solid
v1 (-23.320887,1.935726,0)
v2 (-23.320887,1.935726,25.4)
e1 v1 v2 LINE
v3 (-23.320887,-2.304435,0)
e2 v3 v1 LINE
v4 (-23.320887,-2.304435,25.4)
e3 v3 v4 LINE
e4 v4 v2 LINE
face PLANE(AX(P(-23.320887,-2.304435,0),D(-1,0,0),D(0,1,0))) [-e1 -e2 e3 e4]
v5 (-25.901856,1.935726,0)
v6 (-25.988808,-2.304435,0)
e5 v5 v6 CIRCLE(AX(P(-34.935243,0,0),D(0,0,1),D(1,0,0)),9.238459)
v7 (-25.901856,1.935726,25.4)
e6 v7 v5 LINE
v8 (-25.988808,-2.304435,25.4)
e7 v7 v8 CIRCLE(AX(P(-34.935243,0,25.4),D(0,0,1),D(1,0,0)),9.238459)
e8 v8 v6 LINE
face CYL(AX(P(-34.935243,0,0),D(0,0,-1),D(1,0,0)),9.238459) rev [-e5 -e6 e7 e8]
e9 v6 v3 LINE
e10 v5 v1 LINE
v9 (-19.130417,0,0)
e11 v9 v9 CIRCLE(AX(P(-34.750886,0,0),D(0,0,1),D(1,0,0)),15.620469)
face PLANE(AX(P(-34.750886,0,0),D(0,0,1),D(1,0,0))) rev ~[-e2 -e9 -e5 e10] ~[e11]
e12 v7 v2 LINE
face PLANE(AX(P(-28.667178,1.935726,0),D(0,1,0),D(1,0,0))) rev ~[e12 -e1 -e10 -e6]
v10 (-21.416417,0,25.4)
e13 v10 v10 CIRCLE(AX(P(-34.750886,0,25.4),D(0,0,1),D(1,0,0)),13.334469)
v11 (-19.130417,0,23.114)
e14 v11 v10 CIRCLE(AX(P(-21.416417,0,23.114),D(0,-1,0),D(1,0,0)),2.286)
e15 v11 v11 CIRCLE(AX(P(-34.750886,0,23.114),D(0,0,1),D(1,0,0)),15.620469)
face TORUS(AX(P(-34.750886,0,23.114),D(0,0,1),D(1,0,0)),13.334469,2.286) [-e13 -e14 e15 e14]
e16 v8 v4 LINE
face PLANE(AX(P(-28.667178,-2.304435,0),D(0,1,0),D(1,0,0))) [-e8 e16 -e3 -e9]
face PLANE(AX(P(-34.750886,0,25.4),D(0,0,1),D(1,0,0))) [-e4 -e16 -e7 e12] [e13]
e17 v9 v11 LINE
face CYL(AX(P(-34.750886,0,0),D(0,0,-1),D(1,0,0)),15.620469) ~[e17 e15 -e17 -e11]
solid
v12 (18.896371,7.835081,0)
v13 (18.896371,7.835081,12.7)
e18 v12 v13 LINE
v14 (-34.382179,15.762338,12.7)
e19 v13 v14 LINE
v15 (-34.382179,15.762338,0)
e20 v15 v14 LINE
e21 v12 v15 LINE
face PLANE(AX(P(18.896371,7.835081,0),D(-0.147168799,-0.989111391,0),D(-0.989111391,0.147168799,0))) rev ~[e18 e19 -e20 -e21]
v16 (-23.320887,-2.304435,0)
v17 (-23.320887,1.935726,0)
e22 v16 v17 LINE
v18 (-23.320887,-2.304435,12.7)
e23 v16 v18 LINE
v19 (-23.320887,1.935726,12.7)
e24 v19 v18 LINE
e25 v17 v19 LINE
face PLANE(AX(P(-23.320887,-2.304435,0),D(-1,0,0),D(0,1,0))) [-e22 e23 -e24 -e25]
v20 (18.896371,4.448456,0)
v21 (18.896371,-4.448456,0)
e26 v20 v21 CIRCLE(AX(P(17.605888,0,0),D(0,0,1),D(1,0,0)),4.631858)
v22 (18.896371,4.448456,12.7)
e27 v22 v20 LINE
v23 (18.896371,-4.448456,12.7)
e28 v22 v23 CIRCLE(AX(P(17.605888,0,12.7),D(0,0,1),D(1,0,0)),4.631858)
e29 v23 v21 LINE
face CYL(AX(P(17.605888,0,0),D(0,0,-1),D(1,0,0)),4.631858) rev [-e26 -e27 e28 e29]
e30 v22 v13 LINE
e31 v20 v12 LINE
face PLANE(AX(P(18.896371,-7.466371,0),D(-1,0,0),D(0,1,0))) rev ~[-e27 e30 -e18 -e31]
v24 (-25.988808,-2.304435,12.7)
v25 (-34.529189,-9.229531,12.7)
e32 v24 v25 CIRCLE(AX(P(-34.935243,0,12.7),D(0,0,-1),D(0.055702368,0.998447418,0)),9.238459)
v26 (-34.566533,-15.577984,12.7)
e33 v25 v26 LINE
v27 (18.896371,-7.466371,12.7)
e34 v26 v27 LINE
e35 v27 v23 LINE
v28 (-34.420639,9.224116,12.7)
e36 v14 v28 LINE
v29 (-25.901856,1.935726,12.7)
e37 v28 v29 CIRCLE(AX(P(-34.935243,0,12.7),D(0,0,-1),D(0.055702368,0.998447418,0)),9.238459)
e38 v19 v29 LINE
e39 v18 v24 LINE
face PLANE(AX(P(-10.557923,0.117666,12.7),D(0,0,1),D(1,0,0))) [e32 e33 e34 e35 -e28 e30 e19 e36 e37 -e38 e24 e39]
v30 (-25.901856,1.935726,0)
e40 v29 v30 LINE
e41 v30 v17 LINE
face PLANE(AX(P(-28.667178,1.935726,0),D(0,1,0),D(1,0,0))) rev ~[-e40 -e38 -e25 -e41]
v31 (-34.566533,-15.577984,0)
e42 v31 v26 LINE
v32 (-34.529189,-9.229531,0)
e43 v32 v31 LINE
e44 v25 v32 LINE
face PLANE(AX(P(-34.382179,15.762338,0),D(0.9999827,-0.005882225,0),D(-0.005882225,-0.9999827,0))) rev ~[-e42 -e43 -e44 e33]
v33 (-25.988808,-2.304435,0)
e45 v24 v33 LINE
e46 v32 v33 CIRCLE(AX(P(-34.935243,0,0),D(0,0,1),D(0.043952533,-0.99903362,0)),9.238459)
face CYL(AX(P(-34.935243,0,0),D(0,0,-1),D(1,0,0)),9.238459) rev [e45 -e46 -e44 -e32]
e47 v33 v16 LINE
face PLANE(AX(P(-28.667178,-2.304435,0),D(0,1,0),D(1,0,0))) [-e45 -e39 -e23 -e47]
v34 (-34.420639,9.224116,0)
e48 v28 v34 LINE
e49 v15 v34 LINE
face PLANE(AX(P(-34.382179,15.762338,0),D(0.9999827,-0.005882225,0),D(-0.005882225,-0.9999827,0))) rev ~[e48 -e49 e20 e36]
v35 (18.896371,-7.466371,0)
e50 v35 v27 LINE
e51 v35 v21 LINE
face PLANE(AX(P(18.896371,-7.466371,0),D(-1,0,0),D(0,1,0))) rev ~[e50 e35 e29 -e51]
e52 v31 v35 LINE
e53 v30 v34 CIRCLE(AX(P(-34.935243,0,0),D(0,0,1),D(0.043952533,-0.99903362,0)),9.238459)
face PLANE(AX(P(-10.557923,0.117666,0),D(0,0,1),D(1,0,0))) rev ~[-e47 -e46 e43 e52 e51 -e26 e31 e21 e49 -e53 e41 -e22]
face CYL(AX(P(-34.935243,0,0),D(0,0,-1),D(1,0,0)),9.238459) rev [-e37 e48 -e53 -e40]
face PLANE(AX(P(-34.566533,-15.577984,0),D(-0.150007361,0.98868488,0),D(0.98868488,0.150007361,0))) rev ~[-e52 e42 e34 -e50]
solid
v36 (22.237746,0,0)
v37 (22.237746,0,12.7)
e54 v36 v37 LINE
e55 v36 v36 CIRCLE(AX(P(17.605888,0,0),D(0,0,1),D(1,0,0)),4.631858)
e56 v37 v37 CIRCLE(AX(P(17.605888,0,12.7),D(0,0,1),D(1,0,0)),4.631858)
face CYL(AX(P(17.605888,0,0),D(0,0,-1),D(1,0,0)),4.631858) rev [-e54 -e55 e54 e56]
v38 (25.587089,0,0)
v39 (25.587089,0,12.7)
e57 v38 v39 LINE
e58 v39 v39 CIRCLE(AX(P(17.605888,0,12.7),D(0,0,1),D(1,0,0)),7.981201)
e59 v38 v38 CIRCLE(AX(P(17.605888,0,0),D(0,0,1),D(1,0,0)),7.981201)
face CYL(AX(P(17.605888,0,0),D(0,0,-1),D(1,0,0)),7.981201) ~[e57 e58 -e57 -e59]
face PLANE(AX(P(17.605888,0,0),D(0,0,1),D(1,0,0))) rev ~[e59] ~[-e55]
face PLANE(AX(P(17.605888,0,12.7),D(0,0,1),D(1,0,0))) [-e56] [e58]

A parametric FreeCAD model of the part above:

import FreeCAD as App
import Part
import Sketcher

V = App.Vector


def edges_at(feature, points):
    """Names of the edges that pass closest to the given points."""
    edges = feature.Shape.Edges
    near = lambda p: min(range(len(edges)), key=lambda i: edges[i].distToShape(Part.Vertex(*p))[0])
    return sorted({f"Edge{near(p) + 1}" for p in points})


def add_polygon(sketch, points):
    """Adds a closed chain of lines whose ends are joined by coincident constraints."""
    first, n = sketch.GeometryCount, len(points)
    for a, b in zip(points, points[1:] + points[:1]):
        sketch.addGeometry(Part.LineSegment(App.Vector(*a, 0), App.Vector(*b, 0)), False)
    for i in range(n):
        sketch.addConstraint(Sketcher.Constraint("Coincident", first + i, 2, first + (i + 1) % n, 1))

doc = App.newDocument("Part")
params = doc.addObject("Spreadsheet::Sheet", "Params")
for row, (alias, value) in enumerate([
    ("pad1_length", "1 in"),
    ("pad2_length", "0.5 in"),
    ("pad3_length", "0.5 in"),
    ("pad4_length", "0.5 in"),
    ("pad5_length", "1 in"),
    ("pad6_length", "1 in"),
    ("fillet_radius", "0.09 in"),
], start=1):
    params.set(f"A{row}", alias)
    params.set(f"B{row}", "=" + value)
    params.setAlias(f"B{row}", alias)

body = doc.addObject("PartDesign::Body", "Body")

sketch1 = body.newObject("Sketcher::SketchObject", "Sketch")
sketch1.AttachmentSupport = (doc.getObject("XY_Plane"), [""])
sketch1.MapMode = "FlatFace"
sketch1.addGeometry(Part.Circle(V(-35, 0, 0), V(0, 0, 1), 16), False)
sketch1.addConstraint([
    Sketcher.Constraint("PointOnObject", 0, 3, -1),
    Sketcher.Constraint("Diameter", 0, 31.240938),
    Sketcher.Constraint("DistanceX", 0, 3, -1, 1, 34.750886),
])
pad1 = body.newObject("PartDesign::Pad", "Pad")
pad1.Profile = sketch1
pad1.setExpression("Length", "Params.pad1_length")
body2 = doc.addObject("PartDesign::Body", "Body001")

sketch2 = body2.newObject("Sketcher::SketchObject", "Sketch001")
sketch2.AttachmentSupport = (doc.getObject("XY_Plane001"), [""])
sketch2.MapMode = "FlatFace"
sketch2.addGeometry(Part.Circle(V(18, 0, 0), V(0, 0, 1), 8), False)
sketch2.addConstraint([
    Sketcher.Constraint("PointOnObject", 0, 3, -1),
    Sketcher.Constraint("Diameter", 0, 15.962402),
    Sketcher.Constraint("DistanceX", -1, 1, 0, 3, 17.605888),
])
pad2 = body2.newObject("PartDesign::Pad", "Pad001")
pad2.Profile = sketch2
pad2.setExpression("Length", "Params.pad2_length")
body3 = doc.addObject("PartDesign::Body", "Body002")

sketch3 = body3.newObject("Sketcher::SketchObject", "Sketch002")
sketch3.AttachmentSupport = (doc.getObject("XY_Plane002"), [""])
sketch3.MapMode = "FlatFace"
add_polygon(sketch3, [(19, 8), (-34, 16), (-35, -16), (19, -7)])
sketch3.addConstraint([
    Sketcher.Constraint("Vertical", 3),
    Sketcher.Constraint("DistanceY", 3, 1, 3, 2, 15.301452),
    Sketcher.Constraint("DistanceX", 0, 2, -1, 1, 34.382179),
    Sketcher.Constraint("DistanceX", -1, 1, 2, 2, 18.896371),
    Sketcher.Constraint("DistanceY", 2, 2, -1, 1, 7.466371),
    Sketcher.Constraint("DistanceY", 2, 2, 0, 2, 23.228709),
    Sketcher.Constraint("Distance", 1, 31.340864),
    Sketcher.Constraint("Distance", 2, 54.074766),
])
pad3 = body3.newObject("PartDesign::Pad", "Pad002")
pad3.Profile = sketch3
pad3.setExpression("Length", "Params.pad3_length")
body4 = doc.addObject("PartDesign::Body", "Body003")

sketch4 = body4.newObject("Sketcher::SketchObject", "Sketch003")
sketch4.AttachmentSupport = (doc.getObject("XY_Plane003"), [""])
sketch4.MapMode = "FlatFace"
sketch4.addGeometry(Part.Circle(V(17.6, 0, 0), V(0, 0, 1), 4.6), False)
sketch4.addConstraint([
    Sketcher.Constraint("PointOnObject", 0, 3, -1),
    Sketcher.Constraint("Diameter", 0, 9.263716),
    Sketcher.Constraint("DistanceX", -1, 1, 0, 3, 17.605888),
])
pad4 = body4.newObject("PartDesign::Pad", "Pad003")
pad4.Profile = sketch4
pad4.setExpression("Length", "Params.pad4_length")
doc.recompute()

body5 = doc.addObject("PartDesign::Body", "Body004")
body5.BaseFeature = body4
boolean = body2.newObject("PartDesign::Boolean", "Boolean")
boolean.Type = "Cut"
boolean.addObjects([body5])
doc.recompute()

boolean2 = body3.newObject("PartDesign::Boolean", "Boolean001")
boolean2.Type = "Cut"
boolean2.addObjects([body4])
body6 = doc.addObject("PartDesign::Body", "Body005")

sketch5 = body6.newObject("Sketcher::SketchObject", "Sketch004")
sketch5.AttachmentSupport = (doc.getObject("XY_Plane005"), [""])
sketch5.MapMode = "FlatFace"
sketch5.addGeometry(Part.Circle(V(-35, 0, 0), V(0, 0, 1), 9), False)
sketch5.addConstraint([
    Sketcher.Constraint("PointOnObject", 0, 3, -1),
    Sketcher.Constraint("Diameter", 0, 18.476918),
    Sketcher.Constraint("DistanceX", 0, 3, -1, 1, 34.935243),
])
pad5 = body6.newObject("PartDesign::Pad", "Pad004")
pad5.Profile = sketch5
pad5.setExpression("Length", "Params.pad5_length")
doc.recompute()

body7 = doc.addObject("PartDesign::Body", "Body006")
body7.BaseFeature = body6
boolean3 = body.newObject("PartDesign::Boolean", "Boolean002")
boolean3.Type = "Cut"
boolean3.addObjects([body7])
doc.recompute()

boolean4 = body3.newObject("PartDesign::Boolean", "Boolean003")
boolean4.Type = "Cut"
boolean4.addObjects([body6])
body8 = doc.addObject("PartDesign::Body", "Body007")

sketch6 = body8.newObject("Sketcher::SketchObject", "Sketch005")
sketch6.AttachmentSupport = (doc.getObject("XY_Plane007"), [""])
sketch6.MapMode = "FlatFace"
add_polygon(sketch6, [(-28.7, 1.9), (-28.7, -2.3), (-23.3, -2.3), (-23.3, 1.9)])
sketch6.addConstraint([
    Sketcher.Constraint("Vertical", 0),
    Sketcher.Constraint("Horizontal", 1),
    Sketcher.Constraint("Vertical", 2),
    Sketcher.Constraint("Horizontal", 3),
    Sketcher.Constraint("DistanceX", 1, 1, 1, 2, 5.346291),
    Sketcher.Constraint("DistanceY", 0, 2, 0, 1, 4.240161),
    Sketcher.Constraint("DistanceX", 0, 2, -1, 1, 28.667178),
    Sketcher.Constraint("DistanceY", 0, 2, -1, 1, 2.304435),
])
pad6 = body8.newObject("PartDesign::Pad", "Pad005")
pad6.Profile = sketch6
pad6.setExpression("Length", "Params.pad6_length")
doc.recompute()

body9 = doc.addObject("PartDesign::Body", "Body008")
body9.BaseFeature = body8
boolean5 = body.newObject("PartDesign::Boolean", "Boolean004")
boolean5.Type = "Cut"
boolean5.addObjects([body9])
doc.recompute()

fillet = body.newObject("PartDesign::Fillet", "Fillet")
fillet.Base = (boolean5, edges_at(boolean5, [(-50.371, 0, 25.4)]))
fillet.setExpression("Radius", "Params.fillet_radius")
doc.recompute()

boolean6 = body3.newObject("PartDesign::Boolean", "Boolean005")
boolean6.Type = "Cut"
boolean6.addObjects([body8])

doc.recompute()
